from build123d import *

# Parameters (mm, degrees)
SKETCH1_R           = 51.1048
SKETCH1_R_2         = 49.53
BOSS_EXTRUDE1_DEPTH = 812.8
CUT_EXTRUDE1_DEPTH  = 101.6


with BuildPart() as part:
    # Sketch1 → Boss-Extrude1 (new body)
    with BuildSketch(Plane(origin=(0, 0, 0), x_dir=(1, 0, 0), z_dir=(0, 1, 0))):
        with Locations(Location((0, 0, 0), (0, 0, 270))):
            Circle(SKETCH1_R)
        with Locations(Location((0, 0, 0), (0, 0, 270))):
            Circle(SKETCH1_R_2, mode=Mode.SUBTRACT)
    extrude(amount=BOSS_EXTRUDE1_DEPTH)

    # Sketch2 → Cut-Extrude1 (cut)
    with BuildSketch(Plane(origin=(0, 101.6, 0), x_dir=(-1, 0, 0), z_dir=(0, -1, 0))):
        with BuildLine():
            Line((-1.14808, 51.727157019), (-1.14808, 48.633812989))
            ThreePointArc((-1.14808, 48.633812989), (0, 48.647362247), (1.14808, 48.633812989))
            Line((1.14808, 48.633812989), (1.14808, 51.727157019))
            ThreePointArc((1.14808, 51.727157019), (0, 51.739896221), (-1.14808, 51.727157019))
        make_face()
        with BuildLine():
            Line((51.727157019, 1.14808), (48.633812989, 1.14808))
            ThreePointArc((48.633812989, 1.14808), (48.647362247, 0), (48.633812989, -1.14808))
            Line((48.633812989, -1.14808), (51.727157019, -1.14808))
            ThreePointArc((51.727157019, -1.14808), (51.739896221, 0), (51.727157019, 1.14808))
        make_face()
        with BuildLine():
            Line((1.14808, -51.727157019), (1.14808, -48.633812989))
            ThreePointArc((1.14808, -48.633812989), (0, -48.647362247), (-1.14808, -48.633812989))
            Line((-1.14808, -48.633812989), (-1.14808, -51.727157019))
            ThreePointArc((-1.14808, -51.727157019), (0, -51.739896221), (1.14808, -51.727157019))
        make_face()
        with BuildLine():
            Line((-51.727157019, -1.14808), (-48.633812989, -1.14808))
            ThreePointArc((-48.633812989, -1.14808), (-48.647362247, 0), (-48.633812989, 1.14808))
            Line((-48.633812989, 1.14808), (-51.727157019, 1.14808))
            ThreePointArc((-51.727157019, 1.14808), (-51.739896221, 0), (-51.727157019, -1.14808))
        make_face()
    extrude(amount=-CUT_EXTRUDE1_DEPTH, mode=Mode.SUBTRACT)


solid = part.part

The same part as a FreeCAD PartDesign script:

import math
import FreeCAD as App
import Part
import Sketcher
from FreeCAD import Vector
Q = App.Units.Quantity

doc = App.newDocument("Part")
body = doc.addObject("PartDesign::Body", "Body")

# Sketch on XZ plane
sketch1 = body.newObject("Sketcher::SketchObject", "Sketch")
sketch1.AttachmentSupport = (doc.getObject("XZ_Plane"), [""])
sketch1.MapMode = "FlatFace"
sketch1.addGeometry([
    Part.Circle(Vector(0, 0, 0), Vector(0, 0, 1), 51.1048),
    Part.Circle(Vector(0, 0, 0), Vector(0, 0, 1), 49.53),
], False)
sketch1.addConstraint([
    Sketcher.Constraint("Coincident", 0, 3, -1, 1),
    Sketcher.Constraint("Coincident", 1, 3, -1, 1),
    Sketcher.Constraint("Diameter", 1, Q("3.9 in")),
    Sketcher.Constraint("Diameter", 0, Q("4.024 in")),
])
pad1 = body.newObject("PartDesign::Pad", "Pad")
pad1.Profile = sketch1
pad1.Length = Q("32 in")
pad1.Reversed = True

# Sketch on XZ plane
sketch2 = body.newObject("Sketcher::SketchObject", "Sketch001")
sketch2.AttachmentSupport = (doc.getObject("XZ_Plane"), [""])
sketch2.MapMode = "FlatFace"
sketch2.AttachmentOffset = App.Placement(Vector(0, 0, -4 * 25.4), App.Rotation())
sketch2.addGeometry([
    Part.LineSegment(Vector(1.14808, -51.727157, 0), Vector(1.14808, -48.633813, 0)),  # 0
    Part.ArcOfCircle(Part.Circle(Vector(0, -0.000002, 0), Vector(0, 0, 1), 48.64736), math.radians(-91.352309), math.radians(-88.647691)),  # 1
    Part.LineSegment(Vector(-1.14808, -48.633813, 0), Vector(-1.14808, -51.727157, 0)),  # 2
    Part.ArcOfCircle(Part.Circle(Vector(0, 0, 0), Vector(0, 0, 1), 51.739896), math.radians(-91.271466), math.radians(-88.728534)),  # 3
    Part.LineSegment(Vector(-51.727157, -1.14808, 0), Vector(-48.633813, -1.14808, 0)),  # 4
    Part.ArcOfCircle(Part.Circle(Vector(-0.000002, 0, 0), Vector(0, 0, 1), 48.64736), math.radians(178.647691), math.radians(181.352309)),  # 5
    Part.LineSegment(Vector(-48.633813, 1.14808, 0), Vector(-51.727157, 1.14808, 0)),  # 6
    Part.ArcOfCircle(Part.Circle(Vector(0, 0, 0), Vector(0, 0, 1), 51.739896), math.radians(178.728534), math.radians(181.271466)),  # 7
    Part.LineSegment(Vector(-1.14808, 51.727157, 0), Vector(-1.14808, 48.633813, 0)),  # 8
    Part.ArcOfCircle(Part.Circle(Vector(0, 0.000002, 0), Vector(0, 0, 1), 48.64736), math.radians(88.647691), math.radians(91.352309)),  # 9
    Part.LineSegment(Vector(1.14808, 48.633813, 0), Vector(1.14808, 51.727157, 0)),  # 10
    Part.ArcOfCircle(Part.Circle(Vector(0, 0, 0), Vector(0, 0, 1), 51.739896), math.radians(88.728534), math.radians(91.271466)),  # 11
    Part.LineSegment(Vector(51.727157, 1.14808, 0), Vector(48.633813, 1.14808, 0)),  # 12
    Part.ArcOfCircle(Part.Circle(Vector(0.000002, 0, 0), Vector(0, 0, 1), 48.64736), math.radians(-1.352309), math.radians(1.352309)),  # 13
    Part.LineSegment(Vector(48.633813, -1.14808, 0), Vector(51.727157, -1.14808, 0)),  # 14
    Part.ArcOfCircle(Part.Circle(Vector(0, 0, 0), Vector(0, 0, 1), 51.739896), math.radians(-1.271466), math.radians(1.271466)),  # 15
], False)
sketch2.addConstraint([
    Sketcher.Constraint("Coincident", 0, 2, 1, 2),
    Sketcher.Constraint("Coincident", 1, 1, 2, 1),
    Sketcher.Constraint("Coincident", 2, 2, 3, 1),
    Sketcher.Constraint("Coincident", 3, 2, 0, 1),
    Sketcher.Constraint("Coincident", 4, 2, 5, 2),
    Sketcher.Constraint("Coincident", 5, 1, 6, 1),
    Sketcher.Constraint("Coincident", 6, 2, 7, 1),
    Sketcher.Constraint("Coincident", 7, 2, 4, 1),
    Sketcher.Constraint("Coincident", 8, 2, 9, 2),
    Sketcher.Constraint("Coincident", 9, 1, 10, 1),
    Sketcher.Constraint("Coincident", 10, 2, 11, 1),
    Sketcher.Constraint("Coincident", 11, 2, 8, 1),
    Sketcher.Constraint("Coincident", 12, 2, 13, 2),
    Sketcher.Constraint("Coincident", 13, 1, 14, 1),
    Sketcher.Constraint("Coincident", 14, 2, 15, 1),
    Sketcher.Constraint("Coincident", 15, 2, 12, 1),
    Sketcher.Constraint("Vertical", 0),
    Sketcher.Constraint("Vertical", 2),
    Sketcher.Constraint("Horizontal", 4),
    Sketcher.Constraint("Horizontal", 6),
    Sketcher.Constraint("Vertical", 8),
    Sketcher.Constraint("Vertical", 10),
    Sketcher.Constraint("Horizontal", 12),
    Sketcher.Constraint("Horizontal", 14),
    Sketcher.Constraint("Coincident", 1, 3, -1, 1),
    Sketcher.Constraint("Coincident", 3, 3, -1, 1),
    Sketcher.Constraint("Coincident", 5, 3, -1, 1),
    Sketcher.Constraint("Coincident", 7, 3, -1, 1),
    Sketcher.Constraint("Coincident", 9, 3, -1, 1),
    Sketcher.Constraint("Coincident", 11, 3, -1, 1),
    Sketcher.Constraint("Coincident", 13, 3, -1, 1),
    Sketcher.Constraint("Coincident", 15, 3, -1, 1),
    Sketcher.Constraint("Equal", 1, 5),
    Sketcher.Constraint("Equal", 3, 7),
    Sketcher.Constraint("Equal", 5, 9),
    Sketcher.Constraint("Equal", 7, 11),
    Sketcher.Constraint("Equal", 9, 13),
    Sketcher.Constraint("Equal", 11, 15),
    Sketcher.Constraint("Horizontal", 0, 2, 1, 1),
    Sketcher.Constraint("Horizontal", 8, 2, 9, 1),
    Sketcher.Constraint("Horizontal", 6, 2, 12, 2),
    Sketcher.Constraint("Horizontal", 7, 2, 13, 1),
    Sketcher.Constraint("Vertical", 4, 2, 5, 1),
    Sketcher.Constraint("Vertical", 2, 2, 8, 2),
    Sketcher.Constraint("Radius", 1, 48.64736),
    Sketcher.Constraint("DistanceX", -1, 1, 0, 2, Q("0.0452 in")),
    Sketcher.Constraint("DistanceY", 4, 2, -1, 1, Q("0.0452 in")),
    Sketcher.Constraint("Radius", 3, 51.739896),
])
pocket1 = body.newObject("PartDesign::Pocket", "Pocket")
pocket1.Profile = sketch2
pocket1.Length = Q("4 in")

doc.recompute()
